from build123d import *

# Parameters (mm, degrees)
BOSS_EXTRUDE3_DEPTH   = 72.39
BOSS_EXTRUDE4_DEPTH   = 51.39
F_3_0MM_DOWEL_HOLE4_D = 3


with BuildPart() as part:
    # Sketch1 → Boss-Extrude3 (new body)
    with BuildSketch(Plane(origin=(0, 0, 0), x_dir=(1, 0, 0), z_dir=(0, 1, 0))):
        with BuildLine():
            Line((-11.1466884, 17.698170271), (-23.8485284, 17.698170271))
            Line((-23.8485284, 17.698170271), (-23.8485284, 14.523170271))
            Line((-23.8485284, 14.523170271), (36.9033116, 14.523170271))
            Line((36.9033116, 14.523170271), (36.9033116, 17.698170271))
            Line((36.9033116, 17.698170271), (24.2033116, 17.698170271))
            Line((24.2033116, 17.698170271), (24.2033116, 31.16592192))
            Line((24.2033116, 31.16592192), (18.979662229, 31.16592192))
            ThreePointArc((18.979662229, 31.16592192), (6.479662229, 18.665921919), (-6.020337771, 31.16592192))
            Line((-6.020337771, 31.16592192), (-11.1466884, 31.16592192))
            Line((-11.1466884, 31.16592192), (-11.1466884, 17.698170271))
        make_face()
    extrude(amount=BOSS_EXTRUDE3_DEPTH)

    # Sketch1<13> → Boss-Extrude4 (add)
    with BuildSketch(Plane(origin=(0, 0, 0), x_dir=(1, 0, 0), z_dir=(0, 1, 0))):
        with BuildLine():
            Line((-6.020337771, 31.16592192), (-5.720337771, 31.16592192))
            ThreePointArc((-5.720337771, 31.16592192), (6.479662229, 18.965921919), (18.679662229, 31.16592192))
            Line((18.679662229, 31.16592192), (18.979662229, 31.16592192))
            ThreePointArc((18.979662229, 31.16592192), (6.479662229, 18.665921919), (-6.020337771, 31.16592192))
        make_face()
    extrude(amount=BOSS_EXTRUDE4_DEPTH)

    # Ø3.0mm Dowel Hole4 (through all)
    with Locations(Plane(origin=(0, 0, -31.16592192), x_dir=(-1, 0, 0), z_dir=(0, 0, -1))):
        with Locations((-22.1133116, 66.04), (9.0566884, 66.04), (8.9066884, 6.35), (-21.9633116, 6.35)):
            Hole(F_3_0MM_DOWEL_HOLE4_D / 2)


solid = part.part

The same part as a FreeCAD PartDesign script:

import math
import FreeCAD as App
import Part
import Sketcher
from FreeCAD import Vector

doc = App.newDocument("Part")
body = doc.addObject("PartDesign::Body", "Body")

sketch1 = body.newObject("Sketcher::SketchObject", "Sketch")
sketch1.AttachmentSupport = (doc.getObject("XZ_Plane"), [""])
sketch1.MapMode = "FlatFace"
sketch1.addGeometry([
    Part.LineSegment(Vector(-11.1, -17.7, 0), Vector(-23.8, -17.7, 0)),
    Part.LineSegment(Vector(-23.8, -17.7, 0), Vector(-23.8, -14.5, 0)),
    Part.LineSegment(Vector(-23.8, -14.5, 0), Vector(36.9, -14.5, 0)),
    Part.LineSegment(Vector(36.9, -14.5, 0), Vector(36.9, -17.7, 0)),
    Part.LineSegment(Vector(36.9, -17.7, 0), Vector(24.2, -17.7, 0)),
    Part.LineSegment(Vector(24.2, -17.7, 0), Vector(24.2, -31.2, 0)),
    Part.LineSegment(Vector(24.2, -31.2, 0), Vector(19, -31.2, 0)),
    Part.ArcOfCircle(Part.Circle(Vector(6.5, -31.2, 0), Vector(0, 0, 1), 12.5), math.radians(0), math.radians(180)),
    Part.LineSegment(Vector(-6, -31.2, 0), Vector(-11.1, -31.2, 0)),
    Part.LineSegment(Vector(-11.1, -31.2, 0), Vector(-11.1, -17.7, 0)),
], False)
sketch1.addConstraint([
    Sketcher.Constraint("Coincident", 0, 2, 1, 1),
    Sketcher.Constraint("Coincident", 1, 2, 2, 1),
    Sketcher.Constraint("Coincident", 2, 2, 3, 1),
    Sketcher.Constraint("Coincident", 3, 2, 4, 1),
    Sketcher.Constraint("Coincident", 4, 2, 5, 1),
    Sketcher.Constraint("Coincident", 5, 2, 6, 1),
    Sketcher.Constraint("Coincident", 6, 2, 7, 1),
    Sketcher.Constraint("Coincident", 7, 2, 8, 1),
    Sketcher.Constraint("Coincident", 8, 2, 9, 1),
    Sketcher.Constraint("Coincident", 9, 2, 0, 1),
    Sketcher.Constraint("Horizontal", 0),
    Sketcher.Constraint("Vertical", 1),
    Sketcher.Constraint("Horizontal", 2),
    Sketcher.Constraint("Vertical", 3),
    Sketcher.Constraint("Horizontal", 4),
    Sketcher.Constraint("Vertical", 5),
    Sketcher.Constraint("Horizontal", 6),
    Sketcher.Constraint("Horizontal", 8),
    Sketcher.Constraint("Vertical", 9),
    Sketcher.Constraint("Horizontal", 0, 2, 3, 2),
    Sketcher.Constraint("Horizontal", 7, 3, 5, 2),
    Sketcher.Constraint("Horizontal", 6, 2, 7, 2),
    Sketcher.Constraint("Radius", 7, 12.5),
    Sketcher.Constraint("DistanceX", 4, 2, 4, 1, 12.7),
    Sketcher.Constraint("DistanceY", 1, 1, 1, 2, 3.175),
    Sketcher.Constraint("DistanceX", 0, 2, 0, 1, 12.70184),
    Sketcher.Constraint("DistanceX", 2, 1, 2, 2, 60.75184),
    Sketcher.Constraint("DistanceX", 6, 2, 6, 1, 5.223649),
    Sketcher.Constraint("DistanceY", 5, 2, 5, 1, 13.467752),
    Sketcher.Constraint("DistanceY", 7, 3, -1, 1, 31.165922),
    Sketcher.Constraint("DistanceX", 0, 2, -1, 1, 23.848528),
])
pad1 = body.newObject("PartDesign::Pad", "Pad")
pad1.Profile = sketch1
pad1.Length = 72.39
pad1.Reversed = True

sketch2 = body.newObject("Sketcher::SketchObject", "Sketch001")
sketch2.AttachmentSupport = (doc.getObject("XZ_Plane"), [""])
sketch2.MapMode = "FlatFace"
sketch2.addGeometry([
    Part.LineSegment(Vector(-5.72, -31.17, 0), Vector(-6.02, -31.17, 0)),
    Part.ArcOfCircle(Part.Circle(Vector(6.48, -31.17, 0), Vector(0, 0, 1), 12.5), math.radians(0), math.radians(180)),
    Part.LineSegment(Vector(18.98, -31.17, 0), Vector(18.68, -31.17, 0)),
    Part.ArcOfCircle(Part.Circle(Vector(6.48, -31.17, 0), Vector(0, 0, 1), 12.2), math.radians(0), math.radians(180)),
], False)
sketch2.addConstraint([
    Sketcher.Constraint("Coincident", 0, 2, 1, 2),
    Sketcher.Constraint("Coincident", 1, 1, 2, 1),
    Sketcher.Constraint("Coincident", 2, 2, 3, 1),
    Sketcher.Constraint("Coincident", 3, 2, 0, 1),
    Sketcher.Constraint("Horizontal", 0),
    Sketcher.Constraint("Horizontal", 2),
    Sketcher.Constraint("Coincident", 3, 3, 1, 3),
    Sketcher.Constraint("Horizontal", 3, 3, 0, 2),
    Sketcher.Constraint("Horizontal", 0, 2, 1, 1),
    Sketcher.Constraint("Radius", 1, 12.5),
    Sketcher.Constraint("Radius", 3, 12.2),
    Sketcher.Constraint("DistanceY", 1, 3, -1, 1, 31.165922),
    Sketcher.Constraint("DistanceX", -1, 1, 1, 3, 6.479662),
])
pad2 = body.newObject("PartDesign::Pad", "Pad001")
pad2.Profile = sketch2
pad2.Length = 51.39
pad2.Reversed = True

sketch3 = body.newObject("Sketcher::SketchObject", "Sketch002")
sketch3.AttachmentSupport = (doc.getObject("XY_Plane"), [""])
sketch3.MapMode = "FlatFace"
sketch3.AttachmentOffset = App.Placement(Vector(0, 0, -31.165922), App.Rotation())
sketch3.addGeometry([
    Part.Circle(Vector(22.1, 66, 0), Vector(0, 0, 1), 1.5),
    Part.Circle(Vector(-9.1, 66, 0), Vector(0, 0, 1), 1.5),
    Part.Circle(Vector(-8.9, 6.3, 0), Vector(0, 0, 1), 1.5),
    Part.Circle(Vector(22, 6.3, 0), Vector(0, 0, 1), 1.5),
], False)
sketch3.addConstraint([
    Sketcher.Constraint("Equal", 0, 1),
    Sketcher.Constraint("Equal", 1, 2),
    Sketcher.Constraint("Equal", 2, 3),
    Sketcher.Constraint("Horizontal", 0, 3, 1, 3),
    Sketcher.Constraint("Horizontal", 2, 3, 3, 3),
    Sketcher.Constraint("Diameter", 0, 3.0),
    Sketcher.Constraint("DistanceY", -1, 1, 0, 3, 66.04),
    Sketcher.Constraint("DistanceY", -1, 1, 2, 3, 6.35),
    Sketcher.Constraint("DistanceX", 1, 3, 0, 3, 31.17),
    Sketcher.Constraint("DistanceX", 1, 3, 2, 3, 0.15),
    Sketcher.Constraint("DistanceX", 2, 3, 3, 3, 30.87),
    Sketcher.Constraint("DistanceX", -1, 1, 0, 3, 22.113312),
])
doc.recompute()
hole = body.newObject("PartDesign::Hole", "Hole")
hole.Profile = sketch3
hole.ThreadType = "None"
hole.Diameter = 3
hole.DepthType = "ThroughAll"
hole.Reversed = True

doc.recompute()
